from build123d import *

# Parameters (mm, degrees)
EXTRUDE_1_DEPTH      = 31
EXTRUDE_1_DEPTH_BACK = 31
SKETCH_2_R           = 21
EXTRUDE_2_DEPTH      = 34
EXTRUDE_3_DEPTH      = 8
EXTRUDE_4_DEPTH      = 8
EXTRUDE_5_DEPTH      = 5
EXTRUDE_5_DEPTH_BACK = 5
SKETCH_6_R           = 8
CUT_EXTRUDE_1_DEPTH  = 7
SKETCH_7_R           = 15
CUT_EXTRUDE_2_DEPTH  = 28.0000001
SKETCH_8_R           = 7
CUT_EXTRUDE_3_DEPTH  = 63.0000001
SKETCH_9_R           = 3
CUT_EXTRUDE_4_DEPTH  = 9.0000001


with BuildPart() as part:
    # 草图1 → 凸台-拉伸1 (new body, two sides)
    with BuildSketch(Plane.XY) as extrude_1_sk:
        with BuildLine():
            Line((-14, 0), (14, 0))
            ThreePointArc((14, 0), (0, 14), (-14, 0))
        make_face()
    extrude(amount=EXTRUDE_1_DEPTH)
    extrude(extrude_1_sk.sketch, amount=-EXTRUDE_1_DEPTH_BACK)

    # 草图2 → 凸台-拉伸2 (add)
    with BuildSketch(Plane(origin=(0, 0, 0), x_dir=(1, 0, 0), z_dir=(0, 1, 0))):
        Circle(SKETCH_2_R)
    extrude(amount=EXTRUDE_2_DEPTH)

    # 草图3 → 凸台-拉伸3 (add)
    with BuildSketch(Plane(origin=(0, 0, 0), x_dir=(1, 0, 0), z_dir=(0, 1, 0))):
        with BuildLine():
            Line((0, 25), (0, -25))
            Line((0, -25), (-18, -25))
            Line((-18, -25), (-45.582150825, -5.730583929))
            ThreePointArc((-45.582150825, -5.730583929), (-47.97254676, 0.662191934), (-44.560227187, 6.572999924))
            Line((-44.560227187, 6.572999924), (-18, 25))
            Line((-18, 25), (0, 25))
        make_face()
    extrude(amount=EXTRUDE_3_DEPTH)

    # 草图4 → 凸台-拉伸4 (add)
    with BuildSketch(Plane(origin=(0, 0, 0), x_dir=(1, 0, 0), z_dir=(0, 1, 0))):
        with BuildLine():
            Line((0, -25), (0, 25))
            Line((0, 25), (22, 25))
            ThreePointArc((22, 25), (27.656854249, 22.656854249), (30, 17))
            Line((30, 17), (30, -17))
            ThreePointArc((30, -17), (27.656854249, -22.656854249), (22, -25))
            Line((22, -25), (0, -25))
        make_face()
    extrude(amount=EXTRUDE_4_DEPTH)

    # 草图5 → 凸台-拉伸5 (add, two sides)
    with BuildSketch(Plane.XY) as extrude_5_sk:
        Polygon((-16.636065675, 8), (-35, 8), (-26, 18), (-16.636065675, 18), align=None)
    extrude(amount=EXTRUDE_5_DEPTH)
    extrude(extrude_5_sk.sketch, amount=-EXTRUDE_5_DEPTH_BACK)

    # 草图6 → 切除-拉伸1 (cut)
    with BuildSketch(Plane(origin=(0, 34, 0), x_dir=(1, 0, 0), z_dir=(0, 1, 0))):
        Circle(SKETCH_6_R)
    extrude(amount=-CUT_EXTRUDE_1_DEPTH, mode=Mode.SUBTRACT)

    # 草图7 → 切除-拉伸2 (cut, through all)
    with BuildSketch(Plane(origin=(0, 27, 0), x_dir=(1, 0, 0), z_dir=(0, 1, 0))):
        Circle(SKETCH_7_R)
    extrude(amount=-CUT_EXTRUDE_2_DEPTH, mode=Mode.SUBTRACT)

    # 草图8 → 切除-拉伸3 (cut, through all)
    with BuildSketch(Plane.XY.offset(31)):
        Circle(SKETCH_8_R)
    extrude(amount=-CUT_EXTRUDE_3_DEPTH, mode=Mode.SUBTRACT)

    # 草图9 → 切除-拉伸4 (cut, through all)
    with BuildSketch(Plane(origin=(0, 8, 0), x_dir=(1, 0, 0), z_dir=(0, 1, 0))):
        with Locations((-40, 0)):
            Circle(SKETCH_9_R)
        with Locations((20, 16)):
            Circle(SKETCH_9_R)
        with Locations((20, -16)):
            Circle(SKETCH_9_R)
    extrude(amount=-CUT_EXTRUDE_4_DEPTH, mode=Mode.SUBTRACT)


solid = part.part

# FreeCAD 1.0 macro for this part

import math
import FreeCAD as App
import Part
import Sketcher
Q = App.Units.Quantity

doc = App.newDocument("Part")
body = doc.addObject("PartDesign::Body", "Body")

# Sketch on XY plane
sketch1 = doc.addObject("Sketcher::SketchObject", "Sketch")
body.addObject(sketch1)
sketch1.AttachmentSupport = (doc.XY_Plane, [""])
sketch1.MapMode = "FlatFace"
sketch1.addGeometry([
    Part.LineSegment(App.Vector(-14, 0, 0), App.Vector(14, 0, 0)),
    Part.ArcOfCircle(Part.Circle(App.Vector(0, 0, 0), App.Vector(0, 0, 1), 14), math.radians(0), math.radians(180)),
], False)
sketch1.addConstraint([
    Sketcher.Constraint("Coincident", 0, 1, 1, 2),
    Sketcher.Constraint("Coincident", 1, 1, 0, 2),
    Sketcher.Constraint("Horizontal", 0),
    Sketcher.Constraint("Coincident", 1, 3, -1, 1),
    Sketcher.Constraint("PointOnObject", 0, 1, -1),
    Sketcher.Constraint("Radius", 1, Q("14 mm")),
])
pad1 = doc.addObject("PartDesign::Pad", "Pad")
body.addObject(pad1)
pad1.Profile = sketch1
pad1.Type = "TwoLengths"
pad1.Length = 31
pad1.Length2 = 31

# Sketch on XZ plane
sketch2 = doc.addObject("Sketcher::SketchObject", "Sketch001")
body.addObject(sketch2)
sketch2.AttachmentSupport = (doc.XZ_Plane, [""])
sketch2.MapMode = "FlatFace"
sketch2.addGeometry(Part.Circle(App.Vector(0, 0, 0), App.Vector(0, 0, 1), 21), False)
sketch2.addConstraint([
    Sketcher.Constraint("Coincident", 0, 3, -1, 1),
    Sketcher.Constraint("Diameter", 0, Q("42 mm")),
])
pad2 = doc.addObject("PartDesign::Pad", "Pad001")
body.addObject(pad2)
pad2.Profile = sketch2
pad2.Length = 34
pad2.Reversed = True

# Sketch on XZ plane
sketch3 = doc.addObject("Sketcher::SketchObject", "Sketch002")
body.addObject(sketch3)
sketch3.AttachmentSupport = (doc.XZ_Plane, [""])
sketch3.MapMode = "FlatFace"
sketch3.addGeometry([
    Part.LineSegment(App.Vector(0, 25, 0), App.Vector(0, -25, 0)),  # 0
    Part.LineSegment(App.Vector(0, -25, 0), App.Vector(-18, -25, 0)),  # 1
    Part.LineSegment(App.Vector(-18, -25, 0), App.Vector(-45, -7, 0)),  # 2
    Part.ArcOfCircle(Part.Circle(App.Vector(-40, 0, 0), App.Vector(0, 0, 1), 8), math.radians(134), math.radians(235)),  # 3
    Part.LineSegment(App.Vector(-46, 6, 0), App.Vector(-18, 25, 0)),  # 4
    Part.LineSegment(App.Vector(-18, 25, 0), App.Vector(0, 25, 0)),  # 5
], False)
sketch3.addConstraint([
    Sketcher.Constraint("Coincident", 0, 2, 1, 1),
    Sketcher.Constraint("Coincident", 1, 2, 2, 1),
    Sketcher.Constraint("Tangent", 2, 2, 3, 2),
    Sketcher.Constraint("Coincident", 3, 1, 4, 1),
    Sketcher.Constraint("Coincident", 4, 2, 5, 1),
    Sketcher.Constraint("Coincident", 5, 2, 0, 1),
    Sketcher.Constraint("Vertical", 0),
    Sketcher.Constraint("Horizontal", 1),
    Sketcher.Constraint("Horizontal", 5),
    Sketcher.Constraint("Symmetric", 0, 2, 5, 2, -1, 1),
    Sketcher.Constraint("PointOnObject", 3, 3, -1),
    Sketcher.Constraint("Vertical", 1, 2, 4, 2),
    Sketcher.Constraint("Radius", 3, Q("8 mm")),
    Sketcher.Constraint("DistanceX", 1, 2, 1, 1, Q("18 mm")),
    Sketcher.Constraint("DistanceY", 0, 2, 0, 1, Q("50 mm")),
    Sketcher.Constraint("DistanceX", 3, 3, -1, 1, Q("40 mm")),
    Sketcher.Constraint("DistanceX", 3, 1, -1, 1, Q("45.582151 mm")),
])
pad3 = doc.addObject("PartDesign::Pad", "Pad002")
body.addObject(pad3)
pad3.Profile = sketch3
pad3.Length = 8
pad3.Reversed = True

# Sketch on XZ plane
sketch4 = doc.addObject("Sketcher::SketchObject", "Sketch003")
body.addObject(sketch4)
sketch4.AttachmentSupport = (doc.XZ_Plane, [""])
sketch4.MapMode = "FlatFace"
sketch4.addGeometry([
    Part.LineSegment(App.Vector(0, -25, 0), App.Vector(0, 25, 0)),  # 0
    Part.LineSegment(App.Vector(0, 25, 0), App.Vector(22, 25, 0)),  # 1
    Part.ArcOfCircle(Part.Circle(App.Vector(22, 17, 0), App.Vector(0, 0, 1), 8), math.radians(0), math.radians(90)),  # 2
    Part.LineSegment(App.Vector(30, 17, 0), App.Vector(30, -17, 0)),  # 3
    Part.ArcOfCircle(Part.Circle(App.Vector(22, -17, 0), App.Vector(0, 0, 1), 8), math.radians(-90), math.radians(0)),  # 4
    Part.LineSegment(App.Vector(22, -25, 0), App.Vector(0, -25, 0)),  # 5
], False)
sketch4.addConstraint([
    Sketcher.Constraint("Coincident", 0, 2, 1, 1),
    Sketcher.Constraint("Tangent", 1, 2, 2, 2),
    Sketcher.Constraint("Tangent", 2, 1, 3, 1),
    Sketcher.Constraint("Tangent", 3, 2, 4, 2),
    Sketcher.Constraint("Tangent", 4, 1, 5, 1),
    Sketcher.Constraint("Coincident", 5, 2, 0, 1),
    Sketcher.Constraint("Vertical", 0),
    Sketcher.Constraint("Horizontal", 1),
    Sketcher.Constraint("Vertical", 3),
    Sketcher.Constraint("Horizontal", 5),
    Sketcher.Constraint("Equal", 2, 4),
    Sketcher.Constraint("Symmetric", 0, 2, 5, 2, -1, 1),
    Sketcher.Constraint("Radius", 2, Q("8 mm")),
    Sketcher.Constraint("DistanceX", 1, 1, 1, 2, Q("22 mm")),
    Sketcher.Constraint("DistanceY", 0, 1, 0, 2, Q("50 mm")),
])
pad4 = doc.addObject("PartDesign::Pad", "Pad003")
body.addObject(pad4)
pad4.Profile = sketch4
pad4.Length = 8
pad4.Reversed = True

# Sketch on XY plane
sketch5 = doc.addObject("Sketcher::SketchObject", "Sketch004")
body.addObject(sketch5)
sketch5.AttachmentSupport = (doc.XY_Plane, [""])
sketch5.MapMode = "FlatFace"
sketch5.addGeometry([
    Part.LineSegment(App.Vector(-35, 8, 0), App.Vector(-17, 8, 0)),
    Part.LineSegment(App.Vector(-17, 8, 0), App.Vector(-17, 18, 0)),
    Part.LineSegment(App.Vector(-17, 18, 0), App.Vector(-26, 18, 0)),
    Part.LineSegment(App.Vector(-26, 18, 0), App.Vector(-35, 8, 0)),
], False)
sketch5.addConstraint([
    Sketcher.Constraint("Coincident", 0, 2, 1, 1),
    Sketcher.Constraint("Coincident", 1, 2, 2, 1),
    Sketcher.Constraint("Coincident", 2, 2, 3, 1),
    Sketcher.Constraint("Coincident", 3, 2, 0, 1),
    Sketcher.Constraint("Horizontal", 0),
    Sketcher.Constraint("Vertical", 1),
    Sketcher.Constraint("Horizontal", 2),
    Sketcher.Constraint("DistanceY", 1, 1, 1, 2, Q("10 mm")),
    Sketcher.Constraint("DistanceY", -1, 1, 0, 2, Q("8 mm")),
    Sketcher.Constraint("DistanceX", 2, 2, -1, 1, Q("26 mm")),
    Sketcher.Constraint("DistanceX", 3, 2, -1, 1, Q("35 mm")),
    Sketcher.Constraint("DistanceX", 0, 1, 0, 2, Q("18.363934 mm")),
])
pad5 = doc.addObject("PartDesign::Pad", "Pad004")
body.addObject(pad5)
pad5.Profile = sketch5
pad5.Type = "TwoLengths"
pad5.Length = 5
pad5.Length2 = 5

# Sketch on XZ plane
sketch6 = doc.addObject("Sketcher::SketchObject", "Sketch005")
body.addObject(sketch6)
sketch6.AttachmentSupport = (doc.XZ_Plane, [""])
sketch6.MapMode = "FlatFace"
sketch6.AttachmentOffset = App.Placement(App.Vector(0, 0, -34), App.Rotation())
sketch6.addGeometry(Part.Circle(App.Vector(0, 0, 0), App.Vector(0, 0, 1), 8), False)
sketch6.addConstraint([
    Sketcher.Constraint("Coincident", 0, 3, -1, 1),
    Sketcher.Constraint("Diameter", 0, Q("16 mm")),
])
pocket1 = doc.addObject("PartDesign::Pocket", "Pocket")
body.addObject(pocket1)
pocket1.Profile = sketch6
pocket1.Length = 7
pocket1.Reversed = True

# Sketch on XZ plane
sketch7 = doc.addObject("Sketcher::SketchObject", "Sketch006")
body.addObject(sketch7)
sketch7.AttachmentSupport = (doc.XZ_Plane, [""])
sketch7.MapMode = "FlatFace"
sketch7.AttachmentOffset = App.Placement(App.Vector(0, 0, -27), App.Rotation())
sketch7.addGeometry(Part.Circle(App.Vector(0, 0, 0), App.Vector(0, 0, 1), 15), False)
sketch7.addConstraint([
    Sketcher.Constraint("Coincident", 0, 3, -1, 1),
    Sketcher.Constraint("Diameter", 0, Q("30 mm")),
])
pocket2 = doc.addObject("PartDesign::Pocket", "Pocket001")
body.addObject(pocket2)
pocket2.Profile = sketch7
pocket2.Type = "ThroughAll"
pocket2.Reversed = True

# Sketch on XY plane
sketch8 = doc.addObject("Sketcher::SketchObject", "Sketch007")
body.addObject(sketch8)
sketch8.AttachmentSupport = (doc.XY_Plane, [""])
sketch8.MapMode = "FlatFace"
sketch8.AttachmentOffset = App.Placement(App.Vector(0, 0, 31), App.Rotation())
sketch8.addGeometry(Part.Circle(App.Vector(0, 0, 0), App.Vector(0, 0, 1), 7), False)
sketch8.addConstraint([
    Sketcher.Constraint("Coincident", 0, 3, -1, 1),
    Sketcher.Constraint("Diameter", 0, Q("14 mm")),
])
pocket3 = doc.addObject("PartDesign::Pocket", "Pocket002")
body.addObject(pocket3)
pocket3.Profile = sketch8
pocket3.Type = "ThroughAll"

# Sketch on XZ plane
sketch9 = doc.addObject("Sketcher::SketchObject", "Sketch008")
body.addObject(sketch9)
sketch9.AttachmentSupport = (doc.XZ_Plane, [""])
sketch9.MapMode = "FlatFace"
sketch9.AttachmentOffset = App.Placement(App.Vector(0, 0, -8), App.Rotation())
sketch9.addGeometry([
    Part.Circle(App.Vector(-40, 0, 0), App.Vector(0, 0, 1), 3),
    Part.Circle(App.Vector(20, -16, 0), App.Vector(0, 0, 1), 3),
    Part.Circle(App.Vector(20, 16, 0), App.Vector(0, 0, 1), 3),
], False)
sketch9.addConstraint([
    Sketcher.Constraint("Equal", 0, 1),
    Sketcher.Constraint("Equal", 1, 2),
    Sketcher.Constraint("Symmetric", 1, 3, 2, 3, -1),
    Sketcher.Constraint("PointOnObject", 0, 3, -1),
    Sketcher.Constraint("Diameter", 0, Q("6 mm")),
    Sketcher.Constraint("DistanceX", 0, 3, -1, 1, Q("40 mm")),
    Sketcher.Constraint("DistanceX", -1, 1, 1, 3, Q("20 mm")),
    Sketcher.Constraint("DistanceY", 1, 3, -1, 1, Q("16 mm")),
])
pocket4 = doc.addObject("PartDesign::Pocket", "Pocket003")
body.addObject(pocket4)
pocket4.Profile = sketch9
pocket4.Type = "ThroughAll"
pocket4.Reversed = True

doc.recompute()
